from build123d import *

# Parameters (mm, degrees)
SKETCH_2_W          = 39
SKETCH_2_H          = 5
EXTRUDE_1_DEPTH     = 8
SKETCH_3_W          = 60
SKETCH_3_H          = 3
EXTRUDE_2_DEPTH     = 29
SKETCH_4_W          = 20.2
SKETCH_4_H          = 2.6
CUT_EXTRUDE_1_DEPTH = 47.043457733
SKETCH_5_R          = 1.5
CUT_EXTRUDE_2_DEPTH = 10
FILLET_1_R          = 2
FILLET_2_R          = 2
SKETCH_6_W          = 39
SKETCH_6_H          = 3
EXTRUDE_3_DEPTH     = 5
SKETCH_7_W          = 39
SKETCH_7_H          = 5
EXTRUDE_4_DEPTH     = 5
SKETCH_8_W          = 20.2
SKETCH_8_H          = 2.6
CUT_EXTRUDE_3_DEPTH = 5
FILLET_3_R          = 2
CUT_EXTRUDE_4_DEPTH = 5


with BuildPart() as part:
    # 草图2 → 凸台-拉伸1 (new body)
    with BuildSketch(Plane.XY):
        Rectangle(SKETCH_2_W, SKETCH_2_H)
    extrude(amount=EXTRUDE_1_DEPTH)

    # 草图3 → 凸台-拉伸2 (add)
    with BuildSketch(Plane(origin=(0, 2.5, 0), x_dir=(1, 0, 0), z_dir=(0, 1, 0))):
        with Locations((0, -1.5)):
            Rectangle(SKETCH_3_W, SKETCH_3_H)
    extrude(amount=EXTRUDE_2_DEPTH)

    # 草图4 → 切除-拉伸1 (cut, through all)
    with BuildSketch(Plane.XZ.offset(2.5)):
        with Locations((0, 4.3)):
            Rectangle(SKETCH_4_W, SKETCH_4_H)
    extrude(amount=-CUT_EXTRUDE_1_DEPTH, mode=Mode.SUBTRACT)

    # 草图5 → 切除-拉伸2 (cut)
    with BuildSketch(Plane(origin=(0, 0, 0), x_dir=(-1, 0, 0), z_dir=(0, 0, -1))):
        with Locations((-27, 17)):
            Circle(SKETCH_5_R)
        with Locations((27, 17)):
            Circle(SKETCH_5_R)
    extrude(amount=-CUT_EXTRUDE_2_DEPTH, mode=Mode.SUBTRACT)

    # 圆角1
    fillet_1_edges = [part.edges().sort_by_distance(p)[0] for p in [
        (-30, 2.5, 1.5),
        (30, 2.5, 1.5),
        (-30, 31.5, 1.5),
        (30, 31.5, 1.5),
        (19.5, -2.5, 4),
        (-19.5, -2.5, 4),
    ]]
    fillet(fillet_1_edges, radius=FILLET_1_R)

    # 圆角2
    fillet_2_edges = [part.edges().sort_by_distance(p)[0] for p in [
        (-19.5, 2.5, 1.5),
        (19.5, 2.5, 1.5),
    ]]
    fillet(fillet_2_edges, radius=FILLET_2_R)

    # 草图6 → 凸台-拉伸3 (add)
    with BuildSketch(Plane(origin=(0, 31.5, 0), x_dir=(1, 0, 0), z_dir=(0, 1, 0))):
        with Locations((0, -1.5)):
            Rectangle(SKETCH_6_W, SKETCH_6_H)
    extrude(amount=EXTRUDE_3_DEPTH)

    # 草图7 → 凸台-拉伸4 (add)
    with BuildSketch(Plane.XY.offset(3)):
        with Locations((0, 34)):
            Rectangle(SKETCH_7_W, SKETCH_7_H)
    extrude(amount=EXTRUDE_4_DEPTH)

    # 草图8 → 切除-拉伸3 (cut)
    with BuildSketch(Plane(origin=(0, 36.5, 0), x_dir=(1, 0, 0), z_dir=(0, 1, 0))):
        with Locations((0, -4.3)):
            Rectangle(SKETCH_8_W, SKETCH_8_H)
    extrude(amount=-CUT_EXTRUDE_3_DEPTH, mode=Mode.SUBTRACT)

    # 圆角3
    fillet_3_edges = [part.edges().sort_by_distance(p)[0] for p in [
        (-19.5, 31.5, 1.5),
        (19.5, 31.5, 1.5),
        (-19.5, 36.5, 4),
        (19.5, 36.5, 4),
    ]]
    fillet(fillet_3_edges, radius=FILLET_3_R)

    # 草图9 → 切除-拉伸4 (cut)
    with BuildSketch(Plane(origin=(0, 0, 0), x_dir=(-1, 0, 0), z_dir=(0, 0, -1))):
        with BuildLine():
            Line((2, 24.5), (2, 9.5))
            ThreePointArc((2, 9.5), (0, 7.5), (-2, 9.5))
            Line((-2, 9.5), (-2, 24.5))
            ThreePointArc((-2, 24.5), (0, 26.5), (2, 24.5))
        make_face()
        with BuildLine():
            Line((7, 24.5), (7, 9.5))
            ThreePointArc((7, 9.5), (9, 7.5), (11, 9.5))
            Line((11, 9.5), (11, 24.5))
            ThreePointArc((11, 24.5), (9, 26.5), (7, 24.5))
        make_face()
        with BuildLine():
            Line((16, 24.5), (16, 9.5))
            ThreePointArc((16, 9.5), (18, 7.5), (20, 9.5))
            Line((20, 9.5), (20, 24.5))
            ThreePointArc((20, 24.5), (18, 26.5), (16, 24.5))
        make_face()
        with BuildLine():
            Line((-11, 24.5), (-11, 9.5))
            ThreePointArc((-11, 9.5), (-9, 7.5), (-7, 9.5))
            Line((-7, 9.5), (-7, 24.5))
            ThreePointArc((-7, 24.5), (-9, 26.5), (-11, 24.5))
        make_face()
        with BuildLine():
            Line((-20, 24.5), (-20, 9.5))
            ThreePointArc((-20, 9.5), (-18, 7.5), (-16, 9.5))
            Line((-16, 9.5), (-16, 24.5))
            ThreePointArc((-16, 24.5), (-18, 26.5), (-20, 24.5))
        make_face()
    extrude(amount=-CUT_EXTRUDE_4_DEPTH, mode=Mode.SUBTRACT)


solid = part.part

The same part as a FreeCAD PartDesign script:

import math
import FreeCAD as App
import Part
import Sketcher
from FreeCAD import Vector
Q = App.Units.Quantity


def edges_at(feature, points):
    """Names of the edges that pass closest to the given points."""
    edges = feature.Shape.Edges
    near = lambda p: min(range(len(edges)), key=lambda i: edges[i].distToShape(Part.Vertex(*p))[0])
    return sorted({f"Edge{near(p) + 1}" for p in points})


def add_polygon(sketch, points):
    """Adds a closed chain of lines whose ends are joined by coincident constraints."""
    first, n = sketch.GeometryCount, len(points)
    for a, b in zip(points, points[1:] + points[:1]):
        sketch.addGeometry(Part.LineSegment(App.Vector(*a, 0), App.Vector(*b, 0)), False)
    for i in range(n):
        sketch.addConstraint(Sketcher.Constraint("Coincident", first + i, 2, first + (i + 1) % n, 1))

doc = App.newDocument("Part")
body = doc.addObject("PartDesign::Body", "Body")

# Sketch on XY plane
sketch1 = doc.addObject("Sketcher::SketchObject", "Sketch")
body.addObject(sketch1)
sketch1.AttachmentSupport = (doc.XY_Plane, [""])
sketch1.MapMode = "FlatFace"
add_polygon(sketch1, [(-20, 2), (-20, -2), (20, -2), (20, 2)])  # lines 0-3
sketch1.addConstraint([
    Sketcher.Constraint("Vertical", 0),
    Sketcher.Constraint("Horizontal", 1),
    Sketcher.Constraint("Vertical", 2),
    Sketcher.Constraint("Horizontal", 3),
    Sketcher.Constraint("Symmetric", 0, 2, 2, 2, -1, 1),
    Sketcher.Constraint("DistanceX", 1, 1, 1, 2, Q("39 mm")),
    Sketcher.Constraint("DistanceY", 0, 2, 0, 1, Q("5 mm")),
])
pad1 = doc.addObject("PartDesign::Pad", "Pad")
body.addObject(pad1)
pad1.Profile = sketch1
pad1.Length = 8

# Sketch on XZ plane
sketch2 = doc.addObject("Sketcher::SketchObject", "Sketch001")
body.addObject(sketch2)
sketch2.AttachmentSupport = (doc.XZ_Plane, [""])
sketch2.MapMode = "FlatFace"
sketch2.AttachmentOffset = App.Placement(Vector(0, 0, -2.5), App.Rotation())
add_polygon(sketch2, [(-30, 0), (-30, 3), (30, 3), (30, 0)])  # lines 0-3
sketch2.addConstraint([
    Sketcher.Constraint("Vertical", 0),
    Sketcher.Constraint("Horizontal", 1),
    Sketcher.Constraint("Vertical", 2),
    Sketcher.Constraint("Horizontal", 3),
    Sketcher.Constraint("Symmetric", 2, 2, 3, 2, -1, 1),
    Sketcher.Constraint("DistanceX", 1, 1, 1, 2, Q("60 mm")),
    Sketcher.Constraint("DistanceY", 0, 1, 0, 2, Q("3 mm")),
])
pad2 = doc.addObject("PartDesign::Pad", "Pad001")
body.addObject(pad2)
pad2.Profile = sketch2
pad2.Length = 29
pad2.Reversed = True

# Sketch on XZ plane
sketch3 = doc.addObject("Sketcher::SketchObject", "Sketch002")
body.addObject(sketch3)
sketch3.AttachmentSupport = (doc.XZ_Plane, [""])
sketch3.MapMode = "FlatFace"
sketch3.AttachmentOffset = App.Placement(Vector(0, 0, 2.5), App.Rotation())
add_polygon(sketch3, [(-10.1, 5.6), (-10.1, 3), (10.1, 3), (10.1, 5.6)])  # lines 0-3
sketch3.addConstraint([
    Sketcher.Constraint("Vertical", 0),
    Sketcher.Constraint("Horizontal", 1),
    Sketcher.Constraint("Vertical", 2),
    Sketcher.Constraint("Horizontal", 3),
    Sketcher.Constraint("DistanceX", 1, 1, 1, 2, Q("20.2 mm")),
    Sketcher.Constraint("DistanceY", 0, 2, 0, 1, Q("2.6 mm")),
    Sketcher.Constraint("DistanceY", -1, 1, 0, 2, Q("3 mm")),
    Sketcher.Constraint("DistanceX", 0, 2, -1, 1, Q("10.1 mm")),
])
pocket1 = doc.addObject("PartDesign::Pocket", "Pocket")
body.addObject(pocket1)
pocket1.Profile = sketch3
pocket1.Type = "ThroughAll"

# Sketch on XY plane
sketch4 = doc.addObject("Sketcher::SketchObject", "Sketch003")
body.addObject(sketch4)
sketch4.AttachmentSupport = (doc.XY_Plane, [""])
sketch4.MapMode = "FlatFace"
sketch4.addGeometry([
    Part.Circle(Vector(27, 17, 0), Vector(0, 0, 1), 1.5),
    Part.Circle(Vector(-27, 17, 0), Vector(0, 0, 1), 1.5),
], False)
sketch4.addConstraint([
    Sketcher.Constraint("Equal", 0, 1),
    Sketcher.Constraint("Symmetric", 0, 3, 1, 3, -2),
    Sketcher.Constraint("Diameter", 0, Q("3 mm")),
    Sketcher.Constraint("DistanceX", -1, 1, 0, 3, Q("27 mm")),
    Sketcher.Constraint("DistanceY", -1, 1, 0, 3, Q("17 mm")),
])
pocket2 = doc.addObject("PartDesign::Pocket", "Pocket001")
body.addObject(pocket2)
pocket2.Profile = sketch4
pocket2.Length = 10
pocket2.Reversed = True
doc.recompute()

fillet = doc.addObject("PartDesign::Fillet", "Fillet")
body.addObject(fillet)
fillet.Base = (pocket2, edges_at(pocket2, [
    (-30, 2.5, 1.5),
    (30, 2.5, 1.5),
    (-30, 31.5, 1.5),
    (30, 31.5, 1.5),
    (19.5, -2.5, 4),
    (-19.5, -2.5, 4),
]))
fillet.Radius = 2
doc.recompute()

fillet2 = doc.addObject("PartDesign::Fillet", "Fillet001")
body.addObject(fillet2)
fillet2.Base = (fillet, edges_at(fillet, [(-19.5, 2.5, 1.5), (19.5, 2.5, 1.5)]))
fillet2.Radius = 2

# Sketch on XZ plane
sketch5 = doc.addObject("Sketcher::SketchObject", "Sketch004")
body.addObject(sketch5)
sketch5.AttachmentSupport = (doc.XZ_Plane, [""])
sketch5.MapMode = "FlatFace"
sketch5.AttachmentOffset = App.Placement(Vector(0, 0, -31.5), App.Rotation())
add_polygon(sketch5, [(-19.5, 0), (-19.5, 3), (19.5, 3), (19.5, 0)])  # lines 0-3
sketch5.addConstraint([
    Sketcher.Constraint("Vertical", 0),
    Sketcher.Constraint("Horizontal", 1),
    Sketcher.Constraint("Vertical", 2),
    Sketcher.Constraint("Horizontal", 3),
    Sketcher.Constraint("Symmetric", 2, 2, 3, 2, -1, 1),
    Sketcher.Constraint("DistanceX", 1, 1, 1, 2, Q("39 mm")),
    Sketcher.Constraint("DistanceY", 0, 1, 0, 2, Q("3 mm")),
])
pad3 = doc.addObject("PartDesign::Pad", "Pad002")
body.addObject(pad3)
pad3.Profile = sketch5
pad3.Length = 5
pad3.Reversed = True

# Sketch on XY plane
sketch6 = doc.addObject("Sketcher::SketchObject", "Sketch005")
body.addObject(sketch6)
sketch6.AttachmentSupport = (doc.XY_Plane, [""])
sketch6.MapMode = "FlatFace"
sketch6.AttachmentOffset = App.Placement(Vector(0, 0, 3), App.Rotation())
add_polygon(sketch6, [(-20, 36), (-20, 32), (20, 32), (20, 36)])  # lines 0-3
sketch6.addConstraint([
    Sketcher.Constraint("Vertical", 0),
    Sketcher.Constraint("Horizontal", 1),
    Sketcher.Constraint("Vertical", 2),
    Sketcher.Constraint("Horizontal", 3),
    Sketcher.Constraint("DistanceX", 1, 1, 1, 2, Q("39 mm")),
    Sketcher.Constraint("DistanceY", 0, 2, 0, 1, Q("5 mm")),
    Sketcher.Constraint("DistanceX", 0, 2, -1, 1, Q("19.5 mm")),
    Sketcher.Constraint("DistanceY", -1, 1, 0, 2, Q("31.5 mm")),
])
pad4 = doc.addObject("PartDesign::Pad", "Pad003")
body.addObject(pad4)
pad4.Profile = sketch6
pad4.Length = 5

# Sketch on XZ plane
sketch7 = doc.addObject("Sketcher::SketchObject", "Sketch006")
body.addObject(sketch7)
sketch7.AttachmentSupport = (doc.XZ_Plane, [""])
sketch7.MapMode = "FlatFace"
sketch7.AttachmentOffset = App.Placement(Vector(0, 0, -36.5), App.Rotation())
add_polygon(sketch7, [(-10.1, 3), (-10.1, 5.6), (10.1, 5.6), (10.1, 3)])  # lines 0-3
sketch7.addConstraint([
    Sketcher.Constraint("Vertical", 0),
    Sketcher.Constraint("Horizontal", 1),
    Sketcher.Constraint("Vertical", 2),
    Sketcher.Constraint("Horizontal", 3),
    Sketcher.Constraint("DistanceX", 1, 1, 1, 2, Q("20.2 mm")),
    Sketcher.Constraint("DistanceY", 0, 1, 0, 2, Q("2.6 mm")),
    Sketcher.Constraint("DistanceY", -1, 1, 2, 2, Q("3 mm")),
    Sketcher.Constraint("DistanceX", 0, 2, -1, 1, Q("10.1 mm")),
])
pocket3 = doc.addObject("PartDesign::Pocket", "Pocket002")
body.addObject(pocket3)
pocket3.Profile = sketch7
pocket3.Length = 5
pocket3.Reversed = True
doc.recompute()

fillet3 = doc.addObject("PartDesign::Fillet", "Fillet002")
body.addObject(fillet3)
fillet3.Base = (pocket3, edges_at(pocket3, [
    (-19.5, 31.5, 1.5),
    (19.5, 31.5, 1.5),
    (-19.5, 36.5, 4),
    (19.5, 36.5, 4),
]))
fillet3.Radius = 2

# Sketch on XY plane
sketch8 = doc.addObject("Sketcher::SketchObject", "Sketch007")
body.addObject(sketch8)
sketch8.AttachmentSupport = (doc.XY_Plane, [""])
sketch8.MapMode = "FlatFace"
sketch8.addGeometry([
    Part.LineSegment(Vector(-2, 9.5, 0), Vector(-2, 24.5, 0)),  # 0
    Part.ArcOfCircle(Part.Circle(Vector(0, 24.5, 0), Vector(0, 0, 1), 2), math.radians(0), math.radians(180)),  # 1
    Part.LineSegment(Vector(2, 24.5, 0), Vector(2, 9.5, 0)),  # 2
    Part.ArcOfCircle(Part.Circle(Vector(0, 9.5, 0), Vector(0, 0, 1), 2), math.radians(180), math.radians(360)),  # 3
    Part.LineSegment(Vector(-7, 24.5, 0), Vector(-7, 9.5, 0)),  # 4
    Part.ArcOfCircle(Part.Circle(Vector(-9, 9.5, 0), Vector(0, 0, 1), 2), math.radians(180), math.radians(360)),  # 5
    Part.LineSegment(Vector(-11, 9.5, 0), Vector(-11, 24.5, 0)),  # 6
    Part.ArcOfCircle(Part.Circle(Vector(-9, 24.5, 0), Vector(0, 0, 1), 2), math.radians(0), math.radians(180)),  # 7
    Part.LineSegment(Vector(-16, 24.5, 0), Vector(-16, 9.5, 0)),  # 8
    Part.ArcOfCircle(Part.Circle(Vector(-18, 9.5, 0), Vector(0, 0, 1), 2), math.radians(180), math.radians(360)),  # 9
    Part.LineSegment(Vector(-20, 9.5, 0), Vector(-20, 24.5, 0)),  # 10
    Part.ArcOfCircle(Part.Circle(Vector(-18, 24.5, 0), Vector(0, 0, 1), 2), math.radians(0), math.radians(180)),  # 11
    Part.LineSegment(Vector(11, 24.5, 0), Vector(11, 9.5, 0)),  # 12
    Part.ArcOfCircle(Part.Circle(Vector(9, 9.5, 0), Vector(0, 0, 1), 2), math.radians(180), math.radians(360)),  # 13
    Part.LineSegment(Vector(7, 9.5, 0), Vector(7, 24.5, 0)),  # 14
    Part.ArcOfCircle(Part.Circle(Vector(9, 24.5, 0), Vector(0, 0, 1), 2), math.radians(0), math.radians(180)),  # 15
    Part.LineSegment(Vector(20, 24.5, 0), Vector(20, 9.5, 0)),  # 16
    Part.ArcOfCircle(Part.Circle(Vector(18, 9.5, 0), Vector(0, 0, 1), 2), math.radians(180), math.radians(360)),  # 17
    Part.LineSegment(Vector(16, 9.5, 0), Vector(16, 24.5, 0)),  # 18
    Part.ArcOfCircle(Part.Circle(Vector(18, 24.5, 0), Vector(0, 0, 1), 2), math.radians(0), math.radians(180)),  # 19
], False)
sketch8.addConstraint([
    Sketcher.Constraint("Tangent", 0, 2, 1, 2),
    Sketcher.Constraint("Tangent", 1, 1, 2, 1),
    Sketcher.Constraint("Tangent", 2, 2, 3, 2),
    Sketcher.Constraint("Tangent", 3, 1, 0, 1),
    Sketcher.Constraint("Tangent", 4, 2, 5, 2),
    Sketcher.Constraint("Tangent", 5, 1, 6, 1),
    Sketcher.Constraint("Tangent", 6, 2, 7, 2),
    Sketcher.Constraint("Tangent", 7, 1, 4, 1),
    Sketcher.Constraint("Tangent", 8, 2, 9, 2),
    Sketcher.Constraint("Tangent", 9, 1, 10, 1),
    Sketcher.Constraint("Tangent", 10, 2, 11, 2),
    Sketcher.Constraint("Tangent", 11, 1, 8, 1),
    Sketcher.Constraint("Tangent", 12, 2, 13, 2),
    Sketcher.Constraint("Tangent", 13, 1, 14, 1),
    Sketcher.Constraint("Tangent", 14, 2, 15, 2),
    Sketcher.Constraint("Tangent", 15, 1, 12, 1),
    Sketcher.Constraint("Tangent", 16, 2, 17, 2),
    Sketcher.Constraint("Tangent", 17, 1, 18, 1),
    Sketcher.Constraint("Tangent", 18, 2, 19, 2),
    Sketcher.Constraint("Tangent", 19, 1, 16, 1),
    Sketcher.Constraint("Vertical", 0),
    Sketcher.Constraint("Vertical", 2),
    Sketcher.Constraint("Vertical", 4),
    Sketcher.Constraint("Vertical", 6),
    Sketcher.Constraint("Vertical", 8),
    Sketcher.Constraint("Vertical", 10),
    Sketcher.Constraint("Vertical", 12),
    Sketcher.Constraint("Vertical", 14),
    Sketcher.Constraint("Vertical", 16),
    Sketcher.Constraint("Vertical", 18),
    Sketcher.Constraint("Equal", 3, 5),
    Sketcher.Constraint("Equal", 7, 9),
    Sketcher.Constraint("Equal", 11, 13),
    Sketcher.Constraint("Equal", 15, 17),
    Sketcher.Constraint("Symmetric", 5, 3, 13, 3, -2),
    Sketcher.Constraint("Symmetric", 9, 3, 17, 3, -2),
    Sketcher.Constraint("PointOnObject", 1, 3, -2),
    Sketcher.Constraint("Horizontal", 3, 3, 5, 3),
    Sketcher.Constraint("Horizontal", 1, 3, 7, 3),
    Sketcher.Constraint("Horizontal", 5, 3, 9, 3),
    Sketcher.Constraint("Horizontal", 7, 3, 11, 3),
    Sketcher.Constraint("Horizontal", 11, 3, 15, 3),
    Sketcher.Constraint("Horizontal", 15, 3, 19, 3),
    Sketcher.Constraint("Radius", 1, Q("2 mm")),
    Sketcher.Constraint("DistanceY", 0, 1, 0, 2, Q("15 mm")),
    Sketcher.Constraint("DistanceX", 5, 3, -1, 1, Q("9 mm")),
    Sketcher.Constraint("DistanceX", 9, 3, -1, 1, Q("18 mm")),
    Sketcher.Constraint("DistanceY", -1, 1, 1, 3, Q("24.5 mm")),
])
pocket4 = doc.addObject("PartDesign::Pocket", "Pocket003")
body.addObject(pocket4)
pocket4.Profile = sketch8
pocket4.Length = 5
pocket4.Reversed = True

doc.recompute()
